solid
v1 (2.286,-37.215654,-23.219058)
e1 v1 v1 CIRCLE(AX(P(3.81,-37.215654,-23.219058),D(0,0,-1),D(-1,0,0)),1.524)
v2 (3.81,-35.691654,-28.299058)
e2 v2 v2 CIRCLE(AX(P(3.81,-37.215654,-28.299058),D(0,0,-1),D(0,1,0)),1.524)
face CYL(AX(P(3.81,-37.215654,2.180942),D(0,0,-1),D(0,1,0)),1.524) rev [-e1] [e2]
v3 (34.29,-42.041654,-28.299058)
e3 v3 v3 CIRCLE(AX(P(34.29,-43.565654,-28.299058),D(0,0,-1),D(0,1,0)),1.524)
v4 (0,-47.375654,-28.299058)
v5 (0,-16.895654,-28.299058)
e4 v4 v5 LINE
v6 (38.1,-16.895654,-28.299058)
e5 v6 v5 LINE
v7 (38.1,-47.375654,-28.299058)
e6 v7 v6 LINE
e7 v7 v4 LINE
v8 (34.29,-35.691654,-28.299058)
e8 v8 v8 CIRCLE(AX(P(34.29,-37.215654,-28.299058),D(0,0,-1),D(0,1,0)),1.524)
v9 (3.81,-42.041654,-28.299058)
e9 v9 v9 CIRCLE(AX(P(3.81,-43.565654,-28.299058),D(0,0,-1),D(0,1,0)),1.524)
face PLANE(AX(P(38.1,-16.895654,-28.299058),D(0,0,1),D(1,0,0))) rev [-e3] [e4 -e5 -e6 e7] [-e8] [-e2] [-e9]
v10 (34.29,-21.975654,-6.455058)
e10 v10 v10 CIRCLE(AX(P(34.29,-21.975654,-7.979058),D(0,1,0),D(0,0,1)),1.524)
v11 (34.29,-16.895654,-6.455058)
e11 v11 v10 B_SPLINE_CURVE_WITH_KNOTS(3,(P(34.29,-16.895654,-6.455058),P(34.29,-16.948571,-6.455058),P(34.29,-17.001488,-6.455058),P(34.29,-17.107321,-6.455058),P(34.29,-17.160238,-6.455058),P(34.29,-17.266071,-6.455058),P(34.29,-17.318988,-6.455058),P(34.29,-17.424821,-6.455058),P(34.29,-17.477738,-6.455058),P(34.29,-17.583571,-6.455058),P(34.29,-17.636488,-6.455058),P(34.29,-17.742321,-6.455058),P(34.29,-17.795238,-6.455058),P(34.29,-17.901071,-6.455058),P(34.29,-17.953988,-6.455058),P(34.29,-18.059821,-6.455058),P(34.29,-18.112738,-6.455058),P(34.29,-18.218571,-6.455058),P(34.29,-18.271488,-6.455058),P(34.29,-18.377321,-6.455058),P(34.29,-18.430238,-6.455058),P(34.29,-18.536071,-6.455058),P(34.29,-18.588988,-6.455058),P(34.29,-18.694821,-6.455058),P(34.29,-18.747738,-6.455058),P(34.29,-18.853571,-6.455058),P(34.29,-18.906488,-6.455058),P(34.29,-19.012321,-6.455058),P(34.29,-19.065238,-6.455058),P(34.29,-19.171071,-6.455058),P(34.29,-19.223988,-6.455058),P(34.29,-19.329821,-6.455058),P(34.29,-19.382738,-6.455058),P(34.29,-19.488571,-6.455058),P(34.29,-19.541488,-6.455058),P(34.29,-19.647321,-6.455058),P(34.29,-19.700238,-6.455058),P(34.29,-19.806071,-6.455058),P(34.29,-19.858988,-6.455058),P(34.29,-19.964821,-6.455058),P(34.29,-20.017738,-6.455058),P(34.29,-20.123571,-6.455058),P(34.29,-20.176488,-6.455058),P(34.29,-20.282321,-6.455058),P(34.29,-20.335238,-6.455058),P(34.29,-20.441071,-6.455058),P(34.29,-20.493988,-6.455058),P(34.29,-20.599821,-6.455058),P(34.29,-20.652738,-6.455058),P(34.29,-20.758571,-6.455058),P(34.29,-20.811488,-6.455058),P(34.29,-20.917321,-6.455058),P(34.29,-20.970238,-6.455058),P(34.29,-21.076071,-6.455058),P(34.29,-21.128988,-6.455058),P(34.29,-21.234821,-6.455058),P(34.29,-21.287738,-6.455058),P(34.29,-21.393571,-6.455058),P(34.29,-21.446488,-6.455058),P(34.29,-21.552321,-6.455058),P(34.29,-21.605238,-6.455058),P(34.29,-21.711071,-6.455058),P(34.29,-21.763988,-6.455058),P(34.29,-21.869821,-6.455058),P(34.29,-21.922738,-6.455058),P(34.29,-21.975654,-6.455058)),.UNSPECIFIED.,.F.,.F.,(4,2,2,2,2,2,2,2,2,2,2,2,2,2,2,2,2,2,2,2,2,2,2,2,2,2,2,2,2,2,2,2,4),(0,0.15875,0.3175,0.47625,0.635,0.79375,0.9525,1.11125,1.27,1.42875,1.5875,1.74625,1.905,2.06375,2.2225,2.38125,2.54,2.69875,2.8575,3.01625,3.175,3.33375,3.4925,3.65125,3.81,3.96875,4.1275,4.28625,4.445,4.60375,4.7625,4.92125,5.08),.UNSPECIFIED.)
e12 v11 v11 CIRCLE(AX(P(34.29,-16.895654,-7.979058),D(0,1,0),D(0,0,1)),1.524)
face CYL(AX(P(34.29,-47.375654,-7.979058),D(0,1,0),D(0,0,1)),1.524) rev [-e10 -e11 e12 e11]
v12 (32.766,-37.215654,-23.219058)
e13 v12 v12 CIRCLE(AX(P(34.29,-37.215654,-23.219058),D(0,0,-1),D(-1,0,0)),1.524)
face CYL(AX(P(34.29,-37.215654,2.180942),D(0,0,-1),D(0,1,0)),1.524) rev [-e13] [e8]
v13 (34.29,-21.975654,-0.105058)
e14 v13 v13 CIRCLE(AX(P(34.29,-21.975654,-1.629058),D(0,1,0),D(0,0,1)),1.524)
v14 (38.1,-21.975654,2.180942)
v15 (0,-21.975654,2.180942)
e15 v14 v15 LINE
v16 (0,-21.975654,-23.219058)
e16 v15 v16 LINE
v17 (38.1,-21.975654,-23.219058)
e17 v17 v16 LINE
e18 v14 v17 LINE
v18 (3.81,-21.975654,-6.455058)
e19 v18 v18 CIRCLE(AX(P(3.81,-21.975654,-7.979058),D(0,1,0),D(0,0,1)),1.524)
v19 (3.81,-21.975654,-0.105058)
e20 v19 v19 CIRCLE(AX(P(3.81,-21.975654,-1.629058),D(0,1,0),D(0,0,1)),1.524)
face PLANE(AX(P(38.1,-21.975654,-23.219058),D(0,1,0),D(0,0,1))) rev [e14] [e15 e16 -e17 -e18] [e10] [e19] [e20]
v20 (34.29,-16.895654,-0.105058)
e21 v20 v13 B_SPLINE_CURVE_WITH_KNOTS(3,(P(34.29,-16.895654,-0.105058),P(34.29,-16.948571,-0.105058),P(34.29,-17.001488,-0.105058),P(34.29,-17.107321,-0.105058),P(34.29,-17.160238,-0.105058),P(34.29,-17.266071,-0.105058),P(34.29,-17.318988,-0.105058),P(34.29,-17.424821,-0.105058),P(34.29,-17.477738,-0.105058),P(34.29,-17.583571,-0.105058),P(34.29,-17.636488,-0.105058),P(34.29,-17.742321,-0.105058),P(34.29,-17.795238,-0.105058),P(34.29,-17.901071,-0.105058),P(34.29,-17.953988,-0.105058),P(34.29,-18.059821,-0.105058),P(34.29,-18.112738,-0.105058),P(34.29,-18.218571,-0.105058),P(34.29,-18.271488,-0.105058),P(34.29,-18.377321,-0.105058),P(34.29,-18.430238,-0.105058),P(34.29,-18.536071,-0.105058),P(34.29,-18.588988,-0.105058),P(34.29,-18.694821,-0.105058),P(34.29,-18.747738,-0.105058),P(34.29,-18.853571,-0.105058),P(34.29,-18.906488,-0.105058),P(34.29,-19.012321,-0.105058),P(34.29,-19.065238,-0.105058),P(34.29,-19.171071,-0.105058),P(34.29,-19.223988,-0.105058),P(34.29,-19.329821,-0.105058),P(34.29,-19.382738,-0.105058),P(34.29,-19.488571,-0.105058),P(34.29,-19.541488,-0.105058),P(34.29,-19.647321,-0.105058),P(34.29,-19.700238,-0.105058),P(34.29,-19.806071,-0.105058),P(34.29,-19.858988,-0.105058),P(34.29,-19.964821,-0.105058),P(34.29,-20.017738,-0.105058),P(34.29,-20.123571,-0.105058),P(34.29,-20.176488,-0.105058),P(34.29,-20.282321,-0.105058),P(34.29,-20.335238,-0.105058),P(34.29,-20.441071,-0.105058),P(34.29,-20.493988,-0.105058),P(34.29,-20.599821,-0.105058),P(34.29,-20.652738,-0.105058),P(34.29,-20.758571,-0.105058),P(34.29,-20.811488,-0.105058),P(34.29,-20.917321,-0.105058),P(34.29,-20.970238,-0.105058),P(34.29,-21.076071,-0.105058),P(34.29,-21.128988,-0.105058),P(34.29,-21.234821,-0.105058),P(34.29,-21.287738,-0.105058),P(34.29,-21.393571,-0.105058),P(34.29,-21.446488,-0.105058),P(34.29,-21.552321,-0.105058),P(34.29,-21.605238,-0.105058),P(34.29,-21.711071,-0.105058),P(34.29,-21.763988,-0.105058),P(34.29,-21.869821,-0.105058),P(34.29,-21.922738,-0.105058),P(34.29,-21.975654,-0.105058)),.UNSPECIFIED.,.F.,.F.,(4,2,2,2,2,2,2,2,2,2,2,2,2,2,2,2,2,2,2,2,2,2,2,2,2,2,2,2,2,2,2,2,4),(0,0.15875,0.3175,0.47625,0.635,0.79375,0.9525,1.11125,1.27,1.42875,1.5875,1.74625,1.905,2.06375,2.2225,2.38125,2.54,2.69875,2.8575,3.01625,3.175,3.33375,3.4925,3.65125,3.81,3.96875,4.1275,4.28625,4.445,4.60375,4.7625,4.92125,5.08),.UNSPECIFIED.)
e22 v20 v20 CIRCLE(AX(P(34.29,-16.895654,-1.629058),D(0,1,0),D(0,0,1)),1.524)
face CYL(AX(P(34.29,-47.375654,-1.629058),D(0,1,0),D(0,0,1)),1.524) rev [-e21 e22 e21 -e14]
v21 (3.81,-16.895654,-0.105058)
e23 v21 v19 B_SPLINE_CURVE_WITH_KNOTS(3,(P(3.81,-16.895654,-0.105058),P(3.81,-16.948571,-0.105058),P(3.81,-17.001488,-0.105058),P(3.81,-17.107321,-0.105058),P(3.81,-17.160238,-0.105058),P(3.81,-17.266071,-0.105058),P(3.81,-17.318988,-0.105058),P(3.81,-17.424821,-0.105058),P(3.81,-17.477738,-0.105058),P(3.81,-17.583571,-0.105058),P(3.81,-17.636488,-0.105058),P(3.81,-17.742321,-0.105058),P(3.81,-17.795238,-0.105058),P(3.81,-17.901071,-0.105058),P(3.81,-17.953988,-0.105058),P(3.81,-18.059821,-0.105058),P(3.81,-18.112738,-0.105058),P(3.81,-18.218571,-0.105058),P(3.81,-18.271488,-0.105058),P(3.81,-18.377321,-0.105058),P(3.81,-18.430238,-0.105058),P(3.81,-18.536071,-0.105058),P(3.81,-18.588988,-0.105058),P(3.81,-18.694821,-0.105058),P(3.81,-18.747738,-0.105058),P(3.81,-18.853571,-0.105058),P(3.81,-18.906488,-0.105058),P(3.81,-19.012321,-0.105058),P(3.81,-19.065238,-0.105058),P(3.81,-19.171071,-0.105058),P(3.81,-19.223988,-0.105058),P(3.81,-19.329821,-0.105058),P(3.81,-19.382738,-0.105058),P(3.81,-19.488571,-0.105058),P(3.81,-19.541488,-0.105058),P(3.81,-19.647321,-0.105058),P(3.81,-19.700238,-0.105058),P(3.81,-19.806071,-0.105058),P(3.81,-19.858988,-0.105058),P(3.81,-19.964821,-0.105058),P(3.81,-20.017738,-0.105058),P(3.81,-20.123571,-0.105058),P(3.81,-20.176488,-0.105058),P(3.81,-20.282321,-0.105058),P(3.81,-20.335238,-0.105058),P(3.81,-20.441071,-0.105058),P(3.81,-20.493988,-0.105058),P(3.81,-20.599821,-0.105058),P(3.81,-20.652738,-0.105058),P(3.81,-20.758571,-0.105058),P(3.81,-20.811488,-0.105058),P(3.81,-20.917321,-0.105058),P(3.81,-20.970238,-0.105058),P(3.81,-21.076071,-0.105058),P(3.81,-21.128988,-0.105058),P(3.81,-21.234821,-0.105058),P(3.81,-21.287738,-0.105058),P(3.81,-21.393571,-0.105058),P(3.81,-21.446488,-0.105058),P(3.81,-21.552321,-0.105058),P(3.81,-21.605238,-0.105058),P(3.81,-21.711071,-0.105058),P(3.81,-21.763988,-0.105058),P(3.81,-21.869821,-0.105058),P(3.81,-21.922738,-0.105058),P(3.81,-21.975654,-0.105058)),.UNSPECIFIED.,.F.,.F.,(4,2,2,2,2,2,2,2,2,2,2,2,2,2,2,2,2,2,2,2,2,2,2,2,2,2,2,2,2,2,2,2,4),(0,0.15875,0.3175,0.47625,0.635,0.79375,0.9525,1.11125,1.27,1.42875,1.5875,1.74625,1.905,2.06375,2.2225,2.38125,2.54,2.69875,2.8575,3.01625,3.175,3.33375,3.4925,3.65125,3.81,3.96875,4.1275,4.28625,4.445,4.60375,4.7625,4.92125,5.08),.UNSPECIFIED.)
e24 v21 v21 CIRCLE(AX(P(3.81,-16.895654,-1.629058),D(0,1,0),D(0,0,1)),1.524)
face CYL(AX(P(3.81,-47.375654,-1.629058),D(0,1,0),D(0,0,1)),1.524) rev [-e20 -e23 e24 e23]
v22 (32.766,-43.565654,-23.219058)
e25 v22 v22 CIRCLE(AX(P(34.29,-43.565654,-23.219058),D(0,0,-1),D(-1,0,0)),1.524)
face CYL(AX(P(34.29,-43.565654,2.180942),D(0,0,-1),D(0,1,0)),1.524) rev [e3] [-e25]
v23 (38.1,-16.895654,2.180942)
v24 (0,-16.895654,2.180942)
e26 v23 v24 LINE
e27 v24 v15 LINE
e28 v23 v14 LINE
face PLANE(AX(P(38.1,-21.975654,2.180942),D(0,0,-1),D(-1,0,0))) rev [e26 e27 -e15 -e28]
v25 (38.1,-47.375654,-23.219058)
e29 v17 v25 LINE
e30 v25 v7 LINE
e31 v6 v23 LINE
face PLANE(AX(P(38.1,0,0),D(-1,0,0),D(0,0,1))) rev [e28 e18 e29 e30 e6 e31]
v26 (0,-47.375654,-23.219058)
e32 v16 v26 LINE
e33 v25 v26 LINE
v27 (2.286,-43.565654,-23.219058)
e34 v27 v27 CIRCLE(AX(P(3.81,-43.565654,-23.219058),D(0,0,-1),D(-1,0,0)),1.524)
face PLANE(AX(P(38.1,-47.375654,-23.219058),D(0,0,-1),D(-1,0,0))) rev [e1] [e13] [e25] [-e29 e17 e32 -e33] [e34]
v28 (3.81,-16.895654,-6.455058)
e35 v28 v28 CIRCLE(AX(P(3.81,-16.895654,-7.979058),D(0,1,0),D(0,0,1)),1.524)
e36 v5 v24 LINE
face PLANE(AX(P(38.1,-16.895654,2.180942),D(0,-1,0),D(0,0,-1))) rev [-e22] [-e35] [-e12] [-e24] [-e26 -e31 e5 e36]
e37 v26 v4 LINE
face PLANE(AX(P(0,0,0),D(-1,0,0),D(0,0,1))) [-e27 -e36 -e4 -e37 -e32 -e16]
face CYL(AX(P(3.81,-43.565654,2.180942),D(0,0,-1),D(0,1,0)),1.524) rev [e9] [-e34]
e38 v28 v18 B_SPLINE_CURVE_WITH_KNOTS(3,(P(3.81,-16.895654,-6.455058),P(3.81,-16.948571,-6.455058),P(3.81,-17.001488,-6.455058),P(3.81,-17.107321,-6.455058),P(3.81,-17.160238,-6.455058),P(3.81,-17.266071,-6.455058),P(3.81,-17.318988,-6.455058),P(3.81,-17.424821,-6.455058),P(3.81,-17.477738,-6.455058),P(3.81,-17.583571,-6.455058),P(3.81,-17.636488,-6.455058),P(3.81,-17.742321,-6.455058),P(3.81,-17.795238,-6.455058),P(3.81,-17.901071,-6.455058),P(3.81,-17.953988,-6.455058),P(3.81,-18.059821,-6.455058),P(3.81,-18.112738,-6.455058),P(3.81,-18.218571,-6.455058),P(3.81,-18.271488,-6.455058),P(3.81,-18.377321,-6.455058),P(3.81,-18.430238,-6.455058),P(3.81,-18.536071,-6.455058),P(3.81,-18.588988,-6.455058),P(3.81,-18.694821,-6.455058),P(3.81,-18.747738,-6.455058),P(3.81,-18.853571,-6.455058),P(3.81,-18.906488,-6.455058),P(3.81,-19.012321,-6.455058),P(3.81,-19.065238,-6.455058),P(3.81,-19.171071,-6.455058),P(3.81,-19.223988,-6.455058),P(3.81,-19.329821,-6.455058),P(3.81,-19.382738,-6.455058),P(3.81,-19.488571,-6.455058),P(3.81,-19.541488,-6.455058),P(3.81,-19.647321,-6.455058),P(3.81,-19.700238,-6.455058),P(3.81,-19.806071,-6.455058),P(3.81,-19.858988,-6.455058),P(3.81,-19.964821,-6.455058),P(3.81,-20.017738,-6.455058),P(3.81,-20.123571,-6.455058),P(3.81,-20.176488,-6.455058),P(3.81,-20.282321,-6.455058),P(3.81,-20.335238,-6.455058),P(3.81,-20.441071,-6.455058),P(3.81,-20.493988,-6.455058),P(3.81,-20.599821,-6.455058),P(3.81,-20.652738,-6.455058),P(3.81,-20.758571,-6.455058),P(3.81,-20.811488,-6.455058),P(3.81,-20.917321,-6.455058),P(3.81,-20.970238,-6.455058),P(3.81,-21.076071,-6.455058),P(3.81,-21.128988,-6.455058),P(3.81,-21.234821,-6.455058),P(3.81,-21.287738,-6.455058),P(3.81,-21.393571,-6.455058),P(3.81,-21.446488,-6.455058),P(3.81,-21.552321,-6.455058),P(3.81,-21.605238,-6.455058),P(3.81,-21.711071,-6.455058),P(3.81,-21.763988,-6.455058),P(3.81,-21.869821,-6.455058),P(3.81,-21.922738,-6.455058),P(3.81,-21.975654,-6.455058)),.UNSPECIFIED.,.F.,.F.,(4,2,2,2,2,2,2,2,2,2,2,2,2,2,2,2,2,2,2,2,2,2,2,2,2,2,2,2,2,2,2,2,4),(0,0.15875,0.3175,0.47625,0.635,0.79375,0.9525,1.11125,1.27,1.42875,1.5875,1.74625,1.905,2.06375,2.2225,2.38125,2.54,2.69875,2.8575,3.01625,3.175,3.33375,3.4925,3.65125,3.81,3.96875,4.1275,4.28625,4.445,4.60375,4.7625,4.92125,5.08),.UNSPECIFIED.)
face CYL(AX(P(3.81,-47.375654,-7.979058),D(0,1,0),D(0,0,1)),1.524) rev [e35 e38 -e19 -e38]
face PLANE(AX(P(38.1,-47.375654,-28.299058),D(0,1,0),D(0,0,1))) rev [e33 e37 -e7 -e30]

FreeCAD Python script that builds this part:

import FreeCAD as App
import Part
import Sketcher

V = App.Vector
Q = App.Units.Quantity

doc = App.newDocument("Part")
body = doc.addObject("PartDesign::Body", "Body")

sketch1 = body.newObject("Sketcher::SketchObject", "Sketch")
sketch1.AttachmentSupport = (doc.getObject("YZ_Plane"), [""])
sketch1.MapMode = "FlatFace"
sketch1.addGeometry(Part.LineSegment(V(-17, -28, 0), V(-17, 2, 0)), False)
sketch1.addGeometry(Part.LineSegment(V(-17, 2, 0), V(-22, 2, 0)), False)
sketch1.addGeometry(Part.LineSegment(V(-22, 2, 0), V(-22, -23, 0)), False)
sketch1.addGeometry(Part.LineSegment(V(-22, -23, 0), V(-47, -23, 0)), False)
sketch1.addGeometry(Part.LineSegment(V(-47, -23, 0), V(-47, -28, 0)), False)
sketch1.addGeometry(Part.LineSegment(V(-47, -28, 0), V(-17, -28, 0)), False)
sketch1.addConstraint(Sketcher.Constraint("Coincident", 0, 2, 1, 1))
sketch1.addConstraint(Sketcher.Constraint("Coincident", 1, 2, 2, 1))
sketch1.addConstraint(Sketcher.Constraint("Coincident", 2, 2, 3, 1))
sketch1.addConstraint(Sketcher.Constraint("Coincident", 3, 2, 4, 1))
sketch1.addConstraint(Sketcher.Constraint("Coincident", 4, 2, 5, 1))
sketch1.addConstraint(Sketcher.Constraint("Coincident", 5, 2, 0, 1))
sketch1.addConstraint(Sketcher.Constraint("Vertical", 0))
sketch1.addConstraint(Sketcher.Constraint("Horizontal", 1))
sketch1.addConstraint(Sketcher.Constraint("Vertical", 2))
sketch1.addConstraint(Sketcher.Constraint("Horizontal", 3))
sketch1.addConstraint(Sketcher.Constraint("Vertical", 4))
sketch1.addConstraint(Sketcher.Constraint("Horizontal", 5))
sketch1.addConstraint(Sketcher.Constraint("Equal", 5, 0))
sketch1.addConstraint(Sketcher.Constraint("Equal", 3, 2))
sketch1.addConstraint(Sketcher.Constraint("DistanceX", 3, 2, 3, 1, Q("1 in")))
sketch1.addConstraint(Sketcher.Constraint("DistanceX", 1, 2, 1, 1, Q("0.2 in")))
sketch1.addConstraint(Sketcher.Constraint("DistanceX", 0, 2, -1, 1, Q("16.895654 mm")))
sketch1.addConstraint(Sketcher.Constraint("DistanceY", -1, 1, 0, 2, Q("2.180942 mm")))
pad1 = body.newObject("PartDesign::Pad", "Pad")
pad1.Profile = sketch1
pad1.Length = Q("1.5 in")

sketch2 = body.newObject("Sketcher::SketchObject", "Sketch001")
sketch2.AttachmentSupport = (doc.getObject("XY_Plane"), [""])
sketch2.MapMode = "FlatFace"
sketch2.AttachmentOffset = App.Placement(V(0, 0, -28.299058), App.Rotation())
sketch2.addGeometry(Part.Circle(V(34.3, -43.6, 0), V(0, 0, 1), 1.5), False)
sketch2.addGeometry(Part.Circle(V(3.8, -43.6, 0), V(0, 0, 1), 1.5), False)
sketch2.addGeometry(Part.Circle(V(3.8, -37.2, 0), V(0, 0, 1), 1.5), False)
sketch2.addGeometry(Part.Circle(V(34.3, -37.2, 0), V(0, 0, 1), 1.5), False)
sketch2.addConstraint(Sketcher.Constraint("Equal", 0, 1))
sketch2.addConstraint(Sketcher.Constraint("Equal", 1, 2))
sketch2.addConstraint(Sketcher.Constraint("Equal", 2, 3))
sketch2.addConstraint(Sketcher.Constraint("Horizontal", 0, 3, 1, 3))
sketch2.addConstraint(Sketcher.Constraint("Horizontal", 2, 3, 3, 3))
sketch2.addConstraint(Sketcher.Constraint("Vertical", 1, 3, 2, 3))
sketch2.addConstraint(Sketcher.Constraint("Vertical", 0, 3, 3, 3))
sketch2.addConstraint(Sketcher.Constraint("Diameter", 0, Q("0.12 in")))
sketch2.addConstraint(Sketcher.Constraint("DistanceX", 1, 3, 0, 3, Q("1.2 in")))
sketch2.addConstraint(Sketcher.Constraint("DistanceX", -1, 1, 0, 3, Q("1.35 in")))
sketch2.addConstraint(Sketcher.Constraint("DistanceY", 1, 3, 2, 3, Q("0.25 in")))
sketch2.addConstraint(Sketcher.Constraint("DistanceY", 0, 3, -1, 1, Q("43.565654 mm")))
pocket1 = body.newObject("PartDesign::Pocket", "Pocket")
pocket1.Profile = sketch2
pocket1.Type = "ThroughAll"
pocket1.Reversed = True

sketch3 = body.newObject("Sketcher::SketchObject", "Sketch002")
sketch3.AttachmentSupport = (doc.getObject("XZ_Plane"), [""])
sketch3.MapMode = "FlatFace"
sketch3.AttachmentOffset = App.Placement(V(0, 0, 16.895654), App.Rotation())
sketch3.addGeometry(Part.Circle(V(3.8, -1.6, 0), V(0, 0, 1), 1.5), False)
sketch3.addGeometry(Part.Circle(V(34.3, -1.6, 0), V(0, 0, 1), 1.5), False)
sketch3.addGeometry(Part.Circle(V(3.8, -8, 0), V(0, 0, 1), 1.5), False)
sketch3.addGeometry(Part.Circle(V(34.3, -8, 0), V(0, 0, 1), 1.5), False)
sketch3.addConstraint(Sketcher.Constraint("Equal", 0, 1))
sketch3.addConstraint(Sketcher.Constraint("Equal", 1, 2))
sketch3.addConstraint(Sketcher.Constraint("Equal", 2, 3))
sketch3.addConstraint(Sketcher.Constraint("Horizontal", 0, 3, 1, 3))
sketch3.addConstraint(Sketcher.Constraint("Horizontal", 2, 3, 3, 3))
sketch3.addConstraint(Sketcher.Constraint("Vertical", 0, 3, 2, 3))
sketch3.addConstraint(Sketcher.Constraint("Vertical", 1, 3, 3, 3))
sketch3.addConstraint(Sketcher.Constraint("Diameter", 0, Q("0.12 in")))
sketch3.addConstraint(Sketcher.Constraint("DistanceX", 0, 3, 1, 3, Q("1.2 in")))
sketch3.addConstraint(Sketcher.Constraint("DistanceX", -1, 1, 0, 3, Q("0.15 in")))
sketch3.addConstraint(Sketcher.Constraint("DistanceY", 2, 3, 0, 3, Q("0.25 in")))
sketch3.addConstraint(Sketcher.Constraint("DistanceY", 0, 3, -1, 1, Q("1.629058 mm")))
pocket2 = body.newObject("PartDesign::Pocket", "Pocket001")
pocket2.Profile = sketch3
pocket2.Type = "ThroughAll"
pocket2.Reversed = True

doc.recompute()
